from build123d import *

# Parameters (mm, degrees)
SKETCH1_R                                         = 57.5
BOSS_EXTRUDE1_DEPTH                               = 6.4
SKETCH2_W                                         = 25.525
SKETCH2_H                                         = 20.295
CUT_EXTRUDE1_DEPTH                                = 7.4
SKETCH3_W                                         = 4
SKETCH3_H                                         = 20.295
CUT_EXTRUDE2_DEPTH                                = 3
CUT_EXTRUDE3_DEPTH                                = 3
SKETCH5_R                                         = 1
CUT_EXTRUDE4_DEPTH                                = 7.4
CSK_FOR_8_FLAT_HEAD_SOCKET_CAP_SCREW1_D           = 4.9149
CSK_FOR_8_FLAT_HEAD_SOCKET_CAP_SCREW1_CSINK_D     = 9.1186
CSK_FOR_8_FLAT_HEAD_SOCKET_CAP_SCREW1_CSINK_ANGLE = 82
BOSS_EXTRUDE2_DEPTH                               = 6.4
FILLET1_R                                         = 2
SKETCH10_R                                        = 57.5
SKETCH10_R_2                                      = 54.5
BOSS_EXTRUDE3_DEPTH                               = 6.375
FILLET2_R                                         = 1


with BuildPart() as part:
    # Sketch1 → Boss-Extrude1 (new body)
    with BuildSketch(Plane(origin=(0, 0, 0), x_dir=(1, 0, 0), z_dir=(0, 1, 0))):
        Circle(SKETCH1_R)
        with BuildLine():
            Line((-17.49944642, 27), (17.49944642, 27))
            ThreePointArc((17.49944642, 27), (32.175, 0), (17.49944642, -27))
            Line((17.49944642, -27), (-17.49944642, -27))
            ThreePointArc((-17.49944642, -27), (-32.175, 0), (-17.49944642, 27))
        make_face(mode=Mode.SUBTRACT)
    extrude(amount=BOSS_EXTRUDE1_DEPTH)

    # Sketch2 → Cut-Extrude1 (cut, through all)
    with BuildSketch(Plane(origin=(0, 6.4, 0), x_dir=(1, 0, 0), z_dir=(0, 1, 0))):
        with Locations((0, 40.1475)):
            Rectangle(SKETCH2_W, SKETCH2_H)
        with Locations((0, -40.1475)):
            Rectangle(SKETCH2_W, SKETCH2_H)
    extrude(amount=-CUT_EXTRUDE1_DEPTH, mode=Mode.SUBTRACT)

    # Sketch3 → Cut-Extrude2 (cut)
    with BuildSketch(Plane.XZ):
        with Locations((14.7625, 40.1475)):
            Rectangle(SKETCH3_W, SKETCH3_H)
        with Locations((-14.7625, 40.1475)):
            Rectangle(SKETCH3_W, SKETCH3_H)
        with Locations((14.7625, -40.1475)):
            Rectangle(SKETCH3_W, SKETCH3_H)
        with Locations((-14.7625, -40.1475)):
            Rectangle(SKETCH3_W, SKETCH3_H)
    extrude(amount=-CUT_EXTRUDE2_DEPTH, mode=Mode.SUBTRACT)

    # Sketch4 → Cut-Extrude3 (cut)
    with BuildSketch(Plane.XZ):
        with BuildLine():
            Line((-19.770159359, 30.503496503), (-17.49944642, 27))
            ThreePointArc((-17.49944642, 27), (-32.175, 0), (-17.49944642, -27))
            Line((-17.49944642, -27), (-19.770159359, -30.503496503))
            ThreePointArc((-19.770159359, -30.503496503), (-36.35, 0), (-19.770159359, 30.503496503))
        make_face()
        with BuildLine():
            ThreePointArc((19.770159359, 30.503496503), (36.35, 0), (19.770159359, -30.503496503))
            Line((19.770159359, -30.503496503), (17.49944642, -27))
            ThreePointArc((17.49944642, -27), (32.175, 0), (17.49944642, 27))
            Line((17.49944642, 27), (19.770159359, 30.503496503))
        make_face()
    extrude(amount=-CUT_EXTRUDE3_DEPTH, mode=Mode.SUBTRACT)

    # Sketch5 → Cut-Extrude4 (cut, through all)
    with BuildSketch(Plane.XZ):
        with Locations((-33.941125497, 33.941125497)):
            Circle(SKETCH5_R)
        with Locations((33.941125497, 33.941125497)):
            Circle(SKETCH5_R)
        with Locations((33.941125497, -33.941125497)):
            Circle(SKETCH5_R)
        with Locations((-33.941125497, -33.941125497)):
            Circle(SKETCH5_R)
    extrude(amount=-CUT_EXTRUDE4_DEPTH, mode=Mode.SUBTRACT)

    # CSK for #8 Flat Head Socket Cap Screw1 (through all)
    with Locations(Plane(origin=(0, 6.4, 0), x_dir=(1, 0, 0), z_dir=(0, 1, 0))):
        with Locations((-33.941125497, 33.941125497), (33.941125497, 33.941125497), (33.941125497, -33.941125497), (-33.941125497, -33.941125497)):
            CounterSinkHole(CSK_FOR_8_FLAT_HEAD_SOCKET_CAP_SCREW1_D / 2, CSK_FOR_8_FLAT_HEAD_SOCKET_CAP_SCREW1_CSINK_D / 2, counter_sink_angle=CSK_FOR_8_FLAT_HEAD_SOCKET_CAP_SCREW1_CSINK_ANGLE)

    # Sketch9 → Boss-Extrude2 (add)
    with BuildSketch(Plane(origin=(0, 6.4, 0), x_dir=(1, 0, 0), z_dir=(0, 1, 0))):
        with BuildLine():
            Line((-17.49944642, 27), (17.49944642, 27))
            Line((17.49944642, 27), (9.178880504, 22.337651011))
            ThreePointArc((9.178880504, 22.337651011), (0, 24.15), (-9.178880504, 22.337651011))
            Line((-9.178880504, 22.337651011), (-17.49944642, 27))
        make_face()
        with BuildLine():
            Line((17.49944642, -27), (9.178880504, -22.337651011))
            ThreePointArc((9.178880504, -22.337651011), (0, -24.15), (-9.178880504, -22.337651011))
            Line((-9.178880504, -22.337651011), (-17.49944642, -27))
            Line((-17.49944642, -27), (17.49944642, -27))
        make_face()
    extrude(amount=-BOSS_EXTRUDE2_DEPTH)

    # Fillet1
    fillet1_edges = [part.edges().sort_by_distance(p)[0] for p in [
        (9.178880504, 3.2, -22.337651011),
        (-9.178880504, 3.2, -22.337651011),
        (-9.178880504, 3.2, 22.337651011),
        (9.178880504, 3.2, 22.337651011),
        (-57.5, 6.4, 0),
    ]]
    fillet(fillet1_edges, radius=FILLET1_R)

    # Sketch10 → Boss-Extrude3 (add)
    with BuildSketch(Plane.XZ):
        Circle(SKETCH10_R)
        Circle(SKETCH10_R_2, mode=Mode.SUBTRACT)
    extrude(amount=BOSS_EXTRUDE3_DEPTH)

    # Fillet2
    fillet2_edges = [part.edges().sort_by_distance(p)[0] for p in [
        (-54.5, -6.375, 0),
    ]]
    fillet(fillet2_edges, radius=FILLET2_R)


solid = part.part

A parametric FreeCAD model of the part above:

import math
import FreeCAD as App
import Part
import Sketcher
Q = App.Units.Quantity


def edges_at(feature, points):
    """Names of the edges that pass closest to the given points."""
    edges = feature.Shape.Edges
    near = lambda p: min(range(len(edges)), key=lambda i: edges[i].distToShape(Part.Vertex(*p))[0])
    return sorted({f"Edge{near(p) + 1}" for p in points})

doc = App.newDocument("Part")
body = doc.addObject("PartDesign::Body", "Body")

sketch1 = body.newObject("Sketcher::SketchObject", "Sketch")
sketch1.AttachmentSupport = (doc.getObject("XZ_Plane"), [""])
sketch1.MapMode = "FlatFace"
sketch1.addGeometry([
    Part.Circle(App.Vector(0, 0, 0), App.Vector(0, 0, 1), 57.5),
    Part.ArcOfCircle(Part.Circle(App.Vector(0, 0, 0), App.Vector(0, 0, 1), 32.175), math.radians(122.948388), math.radians(237.051612)),
    Part.LineSegment(App.Vector(-17.499446, -27, 0), App.Vector(17.499446, -27, 0)),
    Part.ArcOfCircle(Part.Circle(App.Vector(0, 0, 0), App.Vector(0, 0, 1), 32.175), math.radians(-57.051612), math.radians(57.051612)),
    Part.LineSegment(App.Vector(17.499446, 27, 0), App.Vector(-17.499446, 27, 0)),
], False)
sketch1.addConstraint([
    Sketcher.Constraint("Coincident", 1, 2, 2, 1),
    Sketcher.Constraint("Coincident", 2, 2, 3, 1),
    Sketcher.Constraint("Coincident", 3, 2, 4, 1),
    Sketcher.Constraint("Coincident", 4, 2, 1, 1),
    Sketcher.Constraint("Horizontal", 2),
    Sketcher.Constraint("Horizontal", 4),
    Sketcher.Constraint("Coincident", 0, 3, -1, 1),
    Sketcher.Constraint("Coincident", 1, 3, -1, 1),
    Sketcher.Constraint("Coincident", 3, 3, -1, 1),
    Sketcher.Constraint("Equal", 1, 3),
    Sketcher.Constraint("Vertical", 2, 2, 3, 2),
    Sketcher.Constraint("Diameter", 0, Q("115 mm")),
    Sketcher.Constraint("DistanceY", 1, 2, -1, 1, Q("27 mm")),
    Sketcher.Constraint("Radius", 1, Q("32.175 mm")),
])
pad1 = body.newObject("PartDesign::Pad", "Pad")
pad1.Profile = sketch1
pad1.Length = 6.4
pad1.Reversed = True

sketch2 = body.newObject("Sketcher::SketchObject", "Sketch001")
sketch2.AttachmentSupport = (doc.getObject("XZ_Plane"), [""])
sketch2.MapMode = "FlatFace"
sketch2.AttachmentOffset = App.Placement(App.Vector(0, 0, -6.4), App.Rotation())
sketch2.addGeometry([
    Part.LineSegment(App.Vector(-12.7625, -50.295, 0), App.Vector(-12.7625, -30, 0)),
    Part.LineSegment(App.Vector(-12.7625, -30, 0), App.Vector(12.7625, -30, 0)),
    Part.LineSegment(App.Vector(12.7625, -30, 0), App.Vector(12.7625, -50.295, 0)),
    Part.LineSegment(App.Vector(12.7625, -50.295, 0), App.Vector(-12.7625, -50.295, 0)),
    Part.LineSegment(App.Vector(-12.7625, 30, 0), App.Vector(-12.7625, 50.295, 0)),
    Part.LineSegment(App.Vector(-12.7625, 50.295, 0), App.Vector(12.7625, 50.295, 0)),
    Part.LineSegment(App.Vector(12.7625, 50.295, 0), App.Vector(12.7625, 30, 0)),
    Part.LineSegment(App.Vector(12.7625, 30, 0), App.Vector(-12.7625, 30, 0)),
], False)
sketch2.addConstraint([
    Sketcher.Constraint("Coincident", 0, 2, 1, 1),
    Sketcher.Constraint("Coincident", 1, 2, 2, 1),
    Sketcher.Constraint("Coincident", 2, 2, 3, 1),
    Sketcher.Constraint("Coincident", 3, 2, 0, 1),
    Sketcher.Constraint("Coincident", 4, 2, 5, 1),
    Sketcher.Constraint("Coincident", 5, 2, 6, 1),
    Sketcher.Constraint("Coincident", 6, 2, 7, 1),
    Sketcher.Constraint("Coincident", 7, 2, 4, 1),
    Sketcher.Constraint("Vertical", 0),
    Sketcher.Constraint("Horizontal", 1),
    Sketcher.Constraint("Vertical", 2),
    Sketcher.Constraint("Horizontal", 3),
    Sketcher.Constraint("Vertical", 4),
    Sketcher.Constraint("Horizontal", 5),
    Sketcher.Constraint("Vertical", 6),
    Sketcher.Constraint("Horizontal", 7),
    Sketcher.Constraint("Symmetric", 2, 2, 4, 2, -1, 1),
    Sketcher.Constraint("Symmetric", 0, 2, 6, 2, -1, 1),
    Sketcher.Constraint("Vertical", 3, 2, 4, 2),
    Sketcher.Constraint("DistanceY", 0, 2, -1, 1, Q("30 mm")),
    Sketcher.Constraint("DistanceX", 1, 1, 1, 2, Q("25.525 mm")),
    Sketcher.Constraint("DistanceY", 0, 1, 0, 2, Q("20.295 mm")),
])
pocket1 = body.newObject("PartDesign::Pocket", "Pocket")
pocket1.Profile = sketch2
pocket1.Type = "ThroughAll"
pocket1.Reversed = True

sketch3 = body.newObject("Sketcher::SketchObject", "Sketch002")
sketch3.AttachmentSupport = (doc.getObject("XZ_Plane"), [""])
sketch3.MapMode = "FlatFace"
sketch3.addGeometry([
    Part.LineSegment(App.Vector(12.7625, 50.295, 0), App.Vector(12.7625, 30, 0)),
    Part.LineSegment(App.Vector(12.7625, 30, 0), App.Vector(16.7625, 30, 0)),
    Part.LineSegment(App.Vector(16.7625, 30, 0), App.Vector(16.7625, 50.295, 0)),
    Part.LineSegment(App.Vector(16.7625, 50.295, 0), App.Vector(12.7625, 50.295, 0)),
    Part.LineSegment(App.Vector(-16.7625, 50.295, 0), App.Vector(-16.7625, 30, 0)),
    Part.LineSegment(App.Vector(-16.7625, 30, 0), App.Vector(-12.7625, 30, 0)),
    Part.LineSegment(App.Vector(-12.7625, 30, 0), App.Vector(-12.7625, 50.295, 0)),
    Part.LineSegment(App.Vector(-12.7625, 50.295, 0), App.Vector(-16.7625, 50.295, 0)),
    Part.LineSegment(App.Vector(12.7625, -30, 0), App.Vector(12.7625, -50.295, 0)),
    Part.LineSegment(App.Vector(12.7625, -50.295, 0), App.Vector(16.7625, -50.295, 0)),
    Part.LineSegment(App.Vector(16.7625, -50.295, 0), App.Vector(16.7625, -30, 0)),
    Part.LineSegment(App.Vector(16.7625, -30, 0), App.Vector(12.7625, -30, 0)),
    Part.LineSegment(App.Vector(-16.7625, -30, 0), App.Vector(-16.7625, -50.295, 0)),
    Part.LineSegment(App.Vector(-16.7625, -50.295, 0), App.Vector(-12.7625, -50.295, 0)),
    Part.LineSegment(App.Vector(-12.7625, -50.295, 0), App.Vector(-12.7625, -30, 0)),
    Part.LineSegment(App.Vector(-12.7625, -30, 0), App.Vector(-16.7625, -30, 0)),
], False)
sketch3.addConstraint([
    Sketcher.Constraint("Coincident", 0, 2, 1, 1),
    Sketcher.Constraint("Coincident", 1, 2, 2, 1),
    Sketcher.Constraint("Coincident", 2, 2, 3, 1),
    Sketcher.Constraint("Coincident", 3, 2, 0, 1),
    Sketcher.Constraint("Coincident", 4, 2, 5, 1),
    Sketcher.Constraint("Coincident", 5, 2, 6, 1),
    Sketcher.Constraint("Coincident", 6, 2, 7, 1),
    Sketcher.Constraint("Coincident", 7, 2, 4, 1),
    Sketcher.Constraint("Coincident", 8, 2, 9, 1),
    Sketcher.Constraint("Coincident", 9, 2, 10, 1),
    Sketcher.Constraint("Coincident", 10, 2, 11, 1),
    Sketcher.Constraint("Coincident", 11, 2, 8, 1),
    Sketcher.Constraint("Coincident", 12, 2, 13, 1),
    Sketcher.Constraint("Coincident", 13, 2, 14, 1),
    Sketcher.Constraint("Coincident", 14, 2, 15, 1),
    Sketcher.Constraint("Coincident", 15, 2, 12, 1),
    Sketcher.Constraint("Vertical", 0),
    Sketcher.Constraint("Horizontal", 1),
    Sketcher.Constraint("Vertical", 2),
    Sketcher.Constraint("Horizontal", 3),
    Sketcher.Constraint("Vertical", 4),
    Sketcher.Constraint("Horizontal", 5),
    Sketcher.Constraint("Vertical", 6),
    Sketcher.Constraint("Horizontal", 7),
    Sketcher.Constraint("Vertical", 8),
    Sketcher.Constraint("Horizontal", 9),
    Sketcher.Constraint("Vertical", 10),
    Sketcher.Constraint("Horizontal", 11),
    Sketcher.Constraint("Vertical", 12),
    Sketcher.Constraint("Horizontal", 13),
    Sketcher.Constraint("Vertical", 14),
    Sketcher.Constraint("Horizontal", 15),
    Sketcher.Constraint("Symmetric", 6, 2, 8, 2, -1, 1),
    Sketcher.Constraint("Symmetric", 4, 2, 10, 2, -1, 1),
    Sketcher.Constraint("Symmetric", 2, 2, 12, 2, -1, 1),
    Sketcher.Constraint("Symmetric", 0, 2, 14, 2, -1, 1),
    Sketcher.Constraint("Symmetric", 1, 2, 4, 2, -2),
    Sketcher.Constraint("Symmetric", 3, 2, 6, 2, -2),
    Sketcher.Constraint("DistanceX", 1, 1, 1, 2, Q("4 mm")),
    Sketcher.Constraint("DistanceY", -1, 1, 0, 2, Q("30 mm")),
    Sketcher.Constraint("DistanceY", 0, 2, 0, 1, Q("20.295 mm")),
    Sketcher.Constraint("DistanceX", 4, 2, 0, 2, Q("29.525 mm")),
])
pocket2 = body.newObject("PartDesign::Pocket", "Pocket001")
pocket2.Profile = sketch3
pocket2.Length = 3

sketch4 = body.newObject("Sketcher::SketchObject", "Sketch003")
sketch4.AttachmentSupport = (doc.getObject("XZ_Plane"), [""])
sketch4.MapMode = "FlatFace"
sketch4.addGeometry([
    Part.LineSegment(App.Vector(-17.499446, 27, 0), App.Vector(-19.770159, 30.503497, 0)),
    Part.ArcOfCircle(Part.Circle(App.Vector(0, 0, 0), App.Vector(0, 0, 1), 36.35), math.radians(122.948388), math.radians(237.051612)),
    Part.LineSegment(App.Vector(-19.770159, -30.503497, 0), App.Vector(-17.499446, -27, 0)),
    Part.ArcOfCircle(Part.Circle(App.Vector(0, 0, 0), App.Vector(0, 0, 1), 32.175), math.radians(122.948388), math.radians(237.051612)),
    Part.ArcOfCircle(Part.Circle(App.Vector(0, 0, 0), App.Vector(0, 0, 1), 36.35), math.radians(-57.051612), math.radians(57.051612)),
    Part.LineSegment(App.Vector(19.770159, 30.503497, 0), App.Vector(17.499446, 27, 0)),
    Part.ArcOfCircle(Part.Circle(App.Vector(0, 0, 0), App.Vector(0, 0, 1), 32.175), math.radians(-57.051612), math.radians(57.051612)),
    Part.LineSegment(App.Vector(17.499446, -27, 0), App.Vector(19.770159, -30.503497, 0)),
], False)
sketch4.addConstraint([
    Sketcher.Constraint("Coincident", 0, 2, 1, 1),
    Sketcher.Constraint("Coincident", 1, 2, 2, 1),
    Sketcher.Constraint("Coincident", 2, 2, 3, 2),
    Sketcher.Constraint("Coincident", 3, 1, 0, 1),
    Sketcher.Constraint("Coincident", 4, 2, 5, 1),
    Sketcher.Constraint("Coincident", 5, 2, 6, 2),
    Sketcher.Constraint("Coincident", 6, 1, 7, 1),
    Sketcher.Constraint("Coincident", 7, 2, 4, 1),
    Sketcher.Constraint("Coincident", 1, 3, -1, 1),
    Sketcher.Constraint("Coincident", 3, 3, -1, 1),
    Sketcher.Constraint("Coincident", 4, 3, -1, 1),
    Sketcher.Constraint("Coincident", 6, 3, -1, 1),
    Sketcher.Constraint("Equal", 1, 4),
    Sketcher.Constraint("Equal", 3, 6),
    Sketcher.Constraint("Parallel", 2, 5),
    Sketcher.Constraint("Parallel", 0, 7),
    Sketcher.Constraint("Horizontal", 0, 2, 4, 2),
    Sketcher.Constraint("Horizontal", 3, 1, 5, 2),
    Sketcher.Constraint("Horizontal", 2, 2, 6, 1),
    Sketcher.Constraint("Vertical", 0, 2, 1, 2),
    Sketcher.Constraint("Radius", 1, Q("36.35 mm")),
    Sketcher.Constraint("DistanceY", 2, 2, -1, 1, Q("27 mm")),
    Sketcher.Constraint("Radius", 3, Q("32.175 mm")),
    Sketcher.Constraint("DistanceX", 0, 2, -1, 1, Q("19.770159 mm")),
])
pocket3 = body.newObject("PartDesign::Pocket", "Pocket002")
pocket3.Profile = sketch4
pocket3.Length = 3

sketch5 = body.newObject("Sketcher::SketchObject", "Sketch004")
sketch5.AttachmentSupport = (doc.getObject("XZ_Plane"), [""])
sketch5.MapMode = "FlatFace"
sketch5.addGeometry([
    Part.Circle(App.Vector(-33.941125, 33.941125, 0), App.Vector(0, 0, 1), 1),
    Part.Circle(App.Vector(33.941125, 33.941125, 0), App.Vector(0, 0, 1), 1),
    Part.Circle(App.Vector(33.941125, -33.941125, 0), App.Vector(0, 0, 1), 1),
    Part.Circle(App.Vector(-33.941125, -33.941125, 0), App.Vector(0, 0, 1), 1),
], False)
sketch5.addConstraint([
    Sketcher.Constraint("Equal", 0, 1),
    Sketcher.Constraint("Equal", 1, 2),
    Sketcher.Constraint("Equal", 2, 3),
    Sketcher.Constraint("Symmetric", 0, 3, 2, 3, -1, 1),
    Sketcher.Constraint("Symmetric", 1, 3, 3, 3, -1, 1),
    Sketcher.Constraint("Symmetric", 0, 3, 1, 3, -2),
    Sketcher.Constraint("Diameter", 0, Q("2 mm")),
    Sketcher.Constraint("DistanceX", 0, 3, 1, 3, Q("67.882251 mm")),
    Sketcher.Constraint("DistanceY", 2, 3, 1, 3, Q("67.882251 mm")),
])
pocket4 = body.newObject("PartDesign::Pocket", "Pocket003")
pocket4.Profile = sketch5
pocket4.Type = "ThroughAll"

sketch6 = body.newObject("Sketcher::SketchObject", "Sketch005")
sketch6.AttachmentSupport = (doc.getObject("XZ_Plane"), [""])
sketch6.MapMode = "FlatFace"
sketch6.AttachmentOffset = App.Placement(App.Vector(0, 0, -6.4), App.Rotation())
sketch6.addGeometry([
    Part.Circle(App.Vector(-33.941125, -33.941125, 0), App.Vector(0, 0, 1), 2.45745),
    Part.Circle(App.Vector(33.941125, -33.941125, 0), App.Vector(0, 0, 1), 2.45745),
    Part.Circle(App.Vector(33.941125, 33.941125, 0), App.Vector(0, 0, 1), 2.45745),
    Part.Circle(App.Vector(-33.941125, 33.941125, 0), App.Vector(0, 0, 1), 2.45745),
], False)
sketch6.addConstraint([
    Sketcher.Constraint("Equal", 0, 1),
    Sketcher.Constraint("Equal", 1, 2),
    Sketcher.Constraint("Equal", 2, 3),
    Sketcher.Constraint("Symmetric", 0, 3, 2, 3, -1, 1),
    Sketcher.Constraint("Symmetric", 1, 3, 3, 3, -1, 1),
    Sketcher.Constraint("Symmetric", 0, 3, 1, 3, -2),
    Sketcher.Constraint("Diameter", 0, Q("4.9149 mm")),
    Sketcher.Constraint("DistanceX", 0, 3, 1, 3, Q("67.882251 mm")),
    Sketcher.Constraint("DistanceY", 1, 3, 2, 3, Q("67.882251 mm")),
])
doc.recompute()
hole = body.newObject("PartDesign::Hole", "Hole")
hole.Profile = sketch6
hole.ThreadType = "None"
hole.Diameter = 4.9149
hole.DepthType = "ThroughAll"
hole.HoleCutType = "Countersink"
hole.HoleCutDiameter = 9.1186
hole.HoleCutCountersinkAngle = 82
hole.Reversed = True

sketch7 = body.newObject("Sketcher::SketchObject", "Sketch006")
sketch7.AttachmentSupport = (doc.getObject("XZ_Plane"), [""])
sketch7.MapMode = "FlatFace"
sketch7.AttachmentOffset = App.Placement(App.Vector(0, 0, -6.4), App.Rotation())
sketch7.addGeometry([
    Part.LineSegment(App.Vector(17.499446, -27, 0), App.Vector(-17.499446, -27, 0)),
    Part.LineSegment(App.Vector(-17.499446, -27, 0), App.Vector(-9.178881, -22.337651, 0)),
    Part.ArcOfCircle(Part.Circle(App.Vector(0, 0, 0), App.Vector(0, 0, 1), 24.15), math.radians(-112.338506), math.radians(-67.661494)),
    Part.LineSegment(App.Vector(9.178881, -22.337651, 0), App.Vector(17.499446, -27, 0)),
    Part.LineSegment(App.Vector(17.499446, 27, 0), App.Vector(9.178881, 22.337651, 0)),
    Part.ArcOfCircle(Part.Circle(App.Vector(0, 0, 0), App.Vector(0, 0, 1), 24.15), math.radians(67.661494), math.radians(112.338506)),
    Part.LineSegment(App.Vector(-9.178881, 22.337651, 0), App.Vector(-17.499446, 27, 0)),
    Part.LineSegment(App.Vector(-17.499446, 27, 0), App.Vector(17.499446, 27, 0)),
], False)
sketch7.addConstraint([
    Sketcher.Constraint("Coincident", 0, 2, 1, 1),
    Sketcher.Constraint("Coincident", 1, 2, 2, 1),
    Sketcher.Constraint("Coincident", 2, 2, 3, 1),
    Sketcher.Constraint("Coincident", 3, 2, 0, 1),
    Sketcher.Constraint("Coincident", 4, 2, 5, 1),
    Sketcher.Constraint("Coincident", 5, 2, 6, 1),
    Sketcher.Constraint("Coincident", 6, 2, 7, 1),
    Sketcher.Constraint("Coincident", 7, 2, 4, 1),
    Sketcher.Constraint("Horizontal", 0),
    Sketcher.Constraint("Horizontal", 7),
    Sketcher.Constraint("Coincident", 2, 3, -1, 1),
    Sketcher.Constraint("Coincident", 5, 3, -1, 1),
    Sketcher.Constraint("Equal", 2, 5),
    Sketcher.Constraint("Symmetric", 3, 2, 6, 2, -1, 1),
    Sketcher.Constraint("Parallel", 1, 4),
    Sketcher.Constraint("Parallel", 3, 6),
    Sketcher.Constraint("Horizontal", 1, 2, 2, 2),
    Sketcher.Constraint("Horizontal", 4, 2, 5, 2),
    Sketcher.Constraint("Vertical", 0, 2, 6, 2),
    Sketcher.Constraint("Radius", 2, Q("24.15 mm")),
    Sketcher.Constraint("DistanceY", 0, 2, -1, 1, Q("27 mm")),
    Sketcher.Constraint("DistanceX", 0, 2, 0, 1, Q("34.998893 mm")),
    Sketcher.Constraint("DistanceX", 1, 2, -1, 1, Q("9.178881 mm")),
])
pad2 = body.newObject("PartDesign::Pad", "Pad001")
pad2.Profile = sketch7
pad2.Length = 6.4
doc.recompute()

fillet = body.newObject("PartDesign::Fillet", "Fillet")
fillet.Base = (pad2, edges_at(pad2, [
    (9.179, 3.2, -22.338),
    (-9.179, 3.2, -22.338),
    (-9.179, 3.2, 22.338),
    (9.179, 3.2, 22.338),
    (-57.5, 6.4, 0),
]))
fillet.Radius = 2

sketch8 = body.newObject("Sketcher::SketchObject", "Sketch007")
sketch8.AttachmentSupport = (doc.getObject("XZ_Plane"), [""])
sketch8.MapMode = "FlatFace"
sketch8.addGeometry([
    Part.Circle(App.Vector(0, 0, 0), App.Vector(0, 0, 1), 57.5),
    Part.Circle(App.Vector(0, 0, 0), App.Vector(0, 0, 1), 54.5),
], False)
sketch8.addConstraint([
    Sketcher.Constraint("Coincident", 0, 3, -1, 1),
    Sketcher.Constraint("Coincident", 1, 3, -1, 1),
    Sketcher.Constraint("Diameter", 0, Q("115 mm")),
    Sketcher.Constraint("Diameter", 1, Q("109 mm")),
])
pad3 = body.newObject("PartDesign::Pad", "Pad002")
pad3.Profile = sketch8
pad3.Length = 6.375
doc.recompute()

fillet2 = body.newObject("PartDesign::Fillet", "Fillet001")
fillet2.Base = (pad3, edges_at(pad3, [(-54.5, -6.375, 0)]))
fillet2.Radius = 1

doc.recompute()
